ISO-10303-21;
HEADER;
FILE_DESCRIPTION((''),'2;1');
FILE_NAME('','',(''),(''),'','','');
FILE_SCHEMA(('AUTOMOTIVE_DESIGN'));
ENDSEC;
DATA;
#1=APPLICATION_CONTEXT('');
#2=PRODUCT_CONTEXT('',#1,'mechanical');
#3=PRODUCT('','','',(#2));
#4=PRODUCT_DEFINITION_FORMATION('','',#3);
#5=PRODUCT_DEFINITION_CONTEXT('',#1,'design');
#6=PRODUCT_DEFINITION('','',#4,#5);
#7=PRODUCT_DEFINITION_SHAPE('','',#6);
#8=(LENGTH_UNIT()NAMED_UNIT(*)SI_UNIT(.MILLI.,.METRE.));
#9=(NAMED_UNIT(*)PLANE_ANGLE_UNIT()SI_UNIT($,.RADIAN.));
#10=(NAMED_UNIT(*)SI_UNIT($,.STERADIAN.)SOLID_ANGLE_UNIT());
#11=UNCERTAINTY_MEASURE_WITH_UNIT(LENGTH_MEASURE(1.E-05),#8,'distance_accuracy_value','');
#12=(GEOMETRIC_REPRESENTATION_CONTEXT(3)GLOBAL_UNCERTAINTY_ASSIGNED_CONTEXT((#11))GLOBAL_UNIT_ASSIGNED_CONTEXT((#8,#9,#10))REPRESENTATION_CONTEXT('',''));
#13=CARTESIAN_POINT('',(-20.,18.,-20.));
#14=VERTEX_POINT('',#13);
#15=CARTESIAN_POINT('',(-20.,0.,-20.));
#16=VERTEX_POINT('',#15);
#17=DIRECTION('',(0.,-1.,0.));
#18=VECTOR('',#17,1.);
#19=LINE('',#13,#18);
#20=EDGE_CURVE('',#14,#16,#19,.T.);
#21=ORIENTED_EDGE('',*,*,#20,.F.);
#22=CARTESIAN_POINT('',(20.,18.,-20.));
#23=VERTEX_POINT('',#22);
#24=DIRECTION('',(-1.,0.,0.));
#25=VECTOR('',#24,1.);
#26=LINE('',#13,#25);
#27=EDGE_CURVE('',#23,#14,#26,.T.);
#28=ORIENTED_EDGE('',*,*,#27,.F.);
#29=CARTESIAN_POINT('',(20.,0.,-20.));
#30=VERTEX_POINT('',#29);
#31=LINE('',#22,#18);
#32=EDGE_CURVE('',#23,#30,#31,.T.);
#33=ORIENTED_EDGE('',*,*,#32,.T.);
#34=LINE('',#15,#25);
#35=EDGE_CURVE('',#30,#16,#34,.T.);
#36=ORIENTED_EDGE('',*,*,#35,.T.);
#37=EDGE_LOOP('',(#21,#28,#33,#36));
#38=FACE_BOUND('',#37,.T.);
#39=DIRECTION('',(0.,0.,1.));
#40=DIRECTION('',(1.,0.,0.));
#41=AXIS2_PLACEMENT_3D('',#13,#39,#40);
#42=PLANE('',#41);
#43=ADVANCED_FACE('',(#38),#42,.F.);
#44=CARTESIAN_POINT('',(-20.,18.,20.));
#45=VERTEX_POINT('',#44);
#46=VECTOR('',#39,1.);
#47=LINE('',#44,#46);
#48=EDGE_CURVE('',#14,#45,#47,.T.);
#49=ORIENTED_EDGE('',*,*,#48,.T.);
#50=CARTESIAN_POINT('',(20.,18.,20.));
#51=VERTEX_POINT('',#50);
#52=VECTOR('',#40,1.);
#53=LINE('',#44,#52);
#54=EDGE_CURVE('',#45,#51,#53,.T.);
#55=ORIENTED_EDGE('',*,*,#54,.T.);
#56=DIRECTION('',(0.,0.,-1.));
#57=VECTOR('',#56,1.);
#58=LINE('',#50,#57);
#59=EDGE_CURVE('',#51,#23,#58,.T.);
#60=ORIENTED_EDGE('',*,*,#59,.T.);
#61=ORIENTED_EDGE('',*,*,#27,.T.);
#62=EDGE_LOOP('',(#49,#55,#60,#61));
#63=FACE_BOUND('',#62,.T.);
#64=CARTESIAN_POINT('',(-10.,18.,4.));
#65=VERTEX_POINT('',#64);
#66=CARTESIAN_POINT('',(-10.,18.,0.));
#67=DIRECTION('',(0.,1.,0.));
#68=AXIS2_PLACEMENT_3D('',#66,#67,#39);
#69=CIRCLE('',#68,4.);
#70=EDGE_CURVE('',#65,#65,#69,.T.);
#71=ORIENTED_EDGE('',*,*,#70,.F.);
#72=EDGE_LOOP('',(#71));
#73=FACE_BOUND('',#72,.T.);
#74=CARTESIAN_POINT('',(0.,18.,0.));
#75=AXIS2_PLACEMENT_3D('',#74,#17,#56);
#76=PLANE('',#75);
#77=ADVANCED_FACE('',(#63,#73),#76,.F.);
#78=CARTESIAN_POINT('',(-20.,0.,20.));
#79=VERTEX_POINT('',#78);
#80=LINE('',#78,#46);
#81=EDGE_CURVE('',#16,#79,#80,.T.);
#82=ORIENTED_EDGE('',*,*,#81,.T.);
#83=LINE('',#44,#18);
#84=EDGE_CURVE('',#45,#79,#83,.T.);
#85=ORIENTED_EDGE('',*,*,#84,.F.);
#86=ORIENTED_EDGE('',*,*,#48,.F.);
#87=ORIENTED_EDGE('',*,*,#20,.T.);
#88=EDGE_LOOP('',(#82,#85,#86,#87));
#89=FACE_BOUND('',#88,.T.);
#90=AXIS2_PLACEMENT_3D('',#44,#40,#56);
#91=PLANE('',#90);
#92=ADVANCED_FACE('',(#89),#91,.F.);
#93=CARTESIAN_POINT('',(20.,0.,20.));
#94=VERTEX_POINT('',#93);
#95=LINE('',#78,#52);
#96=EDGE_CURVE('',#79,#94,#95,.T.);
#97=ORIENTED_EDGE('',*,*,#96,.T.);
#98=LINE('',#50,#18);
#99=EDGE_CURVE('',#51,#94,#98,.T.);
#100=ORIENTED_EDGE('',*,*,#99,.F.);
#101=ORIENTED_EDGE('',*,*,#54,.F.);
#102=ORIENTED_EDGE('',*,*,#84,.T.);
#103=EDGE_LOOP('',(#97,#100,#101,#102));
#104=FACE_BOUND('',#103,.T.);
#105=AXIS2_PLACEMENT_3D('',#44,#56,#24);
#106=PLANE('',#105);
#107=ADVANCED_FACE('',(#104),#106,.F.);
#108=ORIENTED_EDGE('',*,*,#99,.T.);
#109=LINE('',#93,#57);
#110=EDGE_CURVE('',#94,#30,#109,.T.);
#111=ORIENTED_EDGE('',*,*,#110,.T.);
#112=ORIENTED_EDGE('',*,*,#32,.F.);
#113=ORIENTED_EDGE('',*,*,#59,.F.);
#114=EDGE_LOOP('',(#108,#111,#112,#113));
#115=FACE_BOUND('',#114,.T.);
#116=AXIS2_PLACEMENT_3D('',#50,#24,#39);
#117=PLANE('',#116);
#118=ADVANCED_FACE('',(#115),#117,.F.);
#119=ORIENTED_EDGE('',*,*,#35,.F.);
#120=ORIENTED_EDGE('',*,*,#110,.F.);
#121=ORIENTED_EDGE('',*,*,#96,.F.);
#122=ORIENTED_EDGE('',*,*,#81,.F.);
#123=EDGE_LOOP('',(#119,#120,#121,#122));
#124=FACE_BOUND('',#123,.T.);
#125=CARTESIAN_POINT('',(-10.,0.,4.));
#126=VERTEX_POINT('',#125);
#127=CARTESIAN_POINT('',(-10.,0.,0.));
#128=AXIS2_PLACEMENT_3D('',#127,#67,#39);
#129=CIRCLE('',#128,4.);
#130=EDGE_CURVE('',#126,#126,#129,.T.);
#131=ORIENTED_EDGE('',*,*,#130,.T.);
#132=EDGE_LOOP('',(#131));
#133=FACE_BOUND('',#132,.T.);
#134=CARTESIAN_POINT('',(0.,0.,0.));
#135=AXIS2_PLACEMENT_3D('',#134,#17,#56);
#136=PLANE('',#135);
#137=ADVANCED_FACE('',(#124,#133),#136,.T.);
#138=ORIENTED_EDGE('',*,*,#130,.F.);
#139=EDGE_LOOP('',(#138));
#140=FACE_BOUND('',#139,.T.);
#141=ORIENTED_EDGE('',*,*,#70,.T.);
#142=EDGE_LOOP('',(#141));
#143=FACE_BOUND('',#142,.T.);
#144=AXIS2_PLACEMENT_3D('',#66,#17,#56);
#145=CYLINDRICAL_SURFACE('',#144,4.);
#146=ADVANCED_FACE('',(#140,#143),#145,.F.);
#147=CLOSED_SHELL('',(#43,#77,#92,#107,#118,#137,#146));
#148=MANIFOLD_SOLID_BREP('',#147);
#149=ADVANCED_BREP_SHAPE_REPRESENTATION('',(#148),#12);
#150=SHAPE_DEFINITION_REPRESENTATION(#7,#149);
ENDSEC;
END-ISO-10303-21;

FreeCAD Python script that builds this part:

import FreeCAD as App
import Part
import Sketcher

V = App.Vector
Q = App.Units.Quantity

doc = App.newDocument("Part")
body = doc.addObject("PartDesign::Body", "Body")

# Sketch on XZ plane
sketch1 = body.newObject("Sketcher::SketchObject", "Sketch")
sketch1.AttachmentSupport = (doc.getObject("XZ_Plane"), [""])
sketch1.MapMode = "FlatFace"
sketch1.addGeometry(Part.LineSegment(V(-20, -20, 0), V(-20, 20, 0)), False)
sketch1.addGeometry(Part.LineSegment(V(-20, 20, 0), V(20, 20, 0)), False)
sketch1.addGeometry(Part.LineSegment(V(20, 20, 0), V(20, -20, 0)), False)
sketch1.addGeometry(Part.LineSegment(V(20, -20, 0), V(-20, -20, 0)), False)
sketch1.addGeometry(Part.Circle(V(-10, 0, 0), V(0, 0, 1), 4), False)
sketch1.addConstraint(Sketcher.Constraint("Coincident", 0, 2, 1, 1))
sketch1.addConstraint(Sketcher.Constraint("Coincident", 1, 2, 2, 1))
sketch1.addConstraint(Sketcher.Constraint("Coincident", 2, 2, 3, 1))
sketch1.addConstraint(Sketcher.Constraint("Coincident", 3, 2, 0, 1))
sketch1.addConstraint(Sketcher.Constraint("Vertical", 0))
sketch1.addConstraint(Sketcher.Constraint("Horizontal", 1))
sketch1.addConstraint(Sketcher.Constraint("Vertical", 2))
sketch1.addConstraint(Sketcher.Constraint("Horizontal", 3))
sketch1.addConstraint(Sketcher.Constraint("Symmetric", 0, 2, 2, 2, -1, 1))
sketch1.addConstraint(Sketcher.Constraint("PointOnObject", 4, 3, -1))
sketch1.addConstraint(Sketcher.Constraint("Equal", 3, 0))
sketch1.addConstraint(Sketcher.Constraint("Diameter", 4, Q("8 mm")))
sketch1.addConstraint(Sketcher.Constraint("DistanceX", 1, 1, 1, 2, Q("40 mm")))
sketch1.addConstraint(Sketcher.Constraint("DistanceX", 4, 3, -1, 1, Q("10 mm")))
pad1 = body.newObject("PartDesign::Pad", "Pad")
pad1.Profile = sketch1
pad1.Length = 18
pad1.Reversed = True

doc.recompute()
